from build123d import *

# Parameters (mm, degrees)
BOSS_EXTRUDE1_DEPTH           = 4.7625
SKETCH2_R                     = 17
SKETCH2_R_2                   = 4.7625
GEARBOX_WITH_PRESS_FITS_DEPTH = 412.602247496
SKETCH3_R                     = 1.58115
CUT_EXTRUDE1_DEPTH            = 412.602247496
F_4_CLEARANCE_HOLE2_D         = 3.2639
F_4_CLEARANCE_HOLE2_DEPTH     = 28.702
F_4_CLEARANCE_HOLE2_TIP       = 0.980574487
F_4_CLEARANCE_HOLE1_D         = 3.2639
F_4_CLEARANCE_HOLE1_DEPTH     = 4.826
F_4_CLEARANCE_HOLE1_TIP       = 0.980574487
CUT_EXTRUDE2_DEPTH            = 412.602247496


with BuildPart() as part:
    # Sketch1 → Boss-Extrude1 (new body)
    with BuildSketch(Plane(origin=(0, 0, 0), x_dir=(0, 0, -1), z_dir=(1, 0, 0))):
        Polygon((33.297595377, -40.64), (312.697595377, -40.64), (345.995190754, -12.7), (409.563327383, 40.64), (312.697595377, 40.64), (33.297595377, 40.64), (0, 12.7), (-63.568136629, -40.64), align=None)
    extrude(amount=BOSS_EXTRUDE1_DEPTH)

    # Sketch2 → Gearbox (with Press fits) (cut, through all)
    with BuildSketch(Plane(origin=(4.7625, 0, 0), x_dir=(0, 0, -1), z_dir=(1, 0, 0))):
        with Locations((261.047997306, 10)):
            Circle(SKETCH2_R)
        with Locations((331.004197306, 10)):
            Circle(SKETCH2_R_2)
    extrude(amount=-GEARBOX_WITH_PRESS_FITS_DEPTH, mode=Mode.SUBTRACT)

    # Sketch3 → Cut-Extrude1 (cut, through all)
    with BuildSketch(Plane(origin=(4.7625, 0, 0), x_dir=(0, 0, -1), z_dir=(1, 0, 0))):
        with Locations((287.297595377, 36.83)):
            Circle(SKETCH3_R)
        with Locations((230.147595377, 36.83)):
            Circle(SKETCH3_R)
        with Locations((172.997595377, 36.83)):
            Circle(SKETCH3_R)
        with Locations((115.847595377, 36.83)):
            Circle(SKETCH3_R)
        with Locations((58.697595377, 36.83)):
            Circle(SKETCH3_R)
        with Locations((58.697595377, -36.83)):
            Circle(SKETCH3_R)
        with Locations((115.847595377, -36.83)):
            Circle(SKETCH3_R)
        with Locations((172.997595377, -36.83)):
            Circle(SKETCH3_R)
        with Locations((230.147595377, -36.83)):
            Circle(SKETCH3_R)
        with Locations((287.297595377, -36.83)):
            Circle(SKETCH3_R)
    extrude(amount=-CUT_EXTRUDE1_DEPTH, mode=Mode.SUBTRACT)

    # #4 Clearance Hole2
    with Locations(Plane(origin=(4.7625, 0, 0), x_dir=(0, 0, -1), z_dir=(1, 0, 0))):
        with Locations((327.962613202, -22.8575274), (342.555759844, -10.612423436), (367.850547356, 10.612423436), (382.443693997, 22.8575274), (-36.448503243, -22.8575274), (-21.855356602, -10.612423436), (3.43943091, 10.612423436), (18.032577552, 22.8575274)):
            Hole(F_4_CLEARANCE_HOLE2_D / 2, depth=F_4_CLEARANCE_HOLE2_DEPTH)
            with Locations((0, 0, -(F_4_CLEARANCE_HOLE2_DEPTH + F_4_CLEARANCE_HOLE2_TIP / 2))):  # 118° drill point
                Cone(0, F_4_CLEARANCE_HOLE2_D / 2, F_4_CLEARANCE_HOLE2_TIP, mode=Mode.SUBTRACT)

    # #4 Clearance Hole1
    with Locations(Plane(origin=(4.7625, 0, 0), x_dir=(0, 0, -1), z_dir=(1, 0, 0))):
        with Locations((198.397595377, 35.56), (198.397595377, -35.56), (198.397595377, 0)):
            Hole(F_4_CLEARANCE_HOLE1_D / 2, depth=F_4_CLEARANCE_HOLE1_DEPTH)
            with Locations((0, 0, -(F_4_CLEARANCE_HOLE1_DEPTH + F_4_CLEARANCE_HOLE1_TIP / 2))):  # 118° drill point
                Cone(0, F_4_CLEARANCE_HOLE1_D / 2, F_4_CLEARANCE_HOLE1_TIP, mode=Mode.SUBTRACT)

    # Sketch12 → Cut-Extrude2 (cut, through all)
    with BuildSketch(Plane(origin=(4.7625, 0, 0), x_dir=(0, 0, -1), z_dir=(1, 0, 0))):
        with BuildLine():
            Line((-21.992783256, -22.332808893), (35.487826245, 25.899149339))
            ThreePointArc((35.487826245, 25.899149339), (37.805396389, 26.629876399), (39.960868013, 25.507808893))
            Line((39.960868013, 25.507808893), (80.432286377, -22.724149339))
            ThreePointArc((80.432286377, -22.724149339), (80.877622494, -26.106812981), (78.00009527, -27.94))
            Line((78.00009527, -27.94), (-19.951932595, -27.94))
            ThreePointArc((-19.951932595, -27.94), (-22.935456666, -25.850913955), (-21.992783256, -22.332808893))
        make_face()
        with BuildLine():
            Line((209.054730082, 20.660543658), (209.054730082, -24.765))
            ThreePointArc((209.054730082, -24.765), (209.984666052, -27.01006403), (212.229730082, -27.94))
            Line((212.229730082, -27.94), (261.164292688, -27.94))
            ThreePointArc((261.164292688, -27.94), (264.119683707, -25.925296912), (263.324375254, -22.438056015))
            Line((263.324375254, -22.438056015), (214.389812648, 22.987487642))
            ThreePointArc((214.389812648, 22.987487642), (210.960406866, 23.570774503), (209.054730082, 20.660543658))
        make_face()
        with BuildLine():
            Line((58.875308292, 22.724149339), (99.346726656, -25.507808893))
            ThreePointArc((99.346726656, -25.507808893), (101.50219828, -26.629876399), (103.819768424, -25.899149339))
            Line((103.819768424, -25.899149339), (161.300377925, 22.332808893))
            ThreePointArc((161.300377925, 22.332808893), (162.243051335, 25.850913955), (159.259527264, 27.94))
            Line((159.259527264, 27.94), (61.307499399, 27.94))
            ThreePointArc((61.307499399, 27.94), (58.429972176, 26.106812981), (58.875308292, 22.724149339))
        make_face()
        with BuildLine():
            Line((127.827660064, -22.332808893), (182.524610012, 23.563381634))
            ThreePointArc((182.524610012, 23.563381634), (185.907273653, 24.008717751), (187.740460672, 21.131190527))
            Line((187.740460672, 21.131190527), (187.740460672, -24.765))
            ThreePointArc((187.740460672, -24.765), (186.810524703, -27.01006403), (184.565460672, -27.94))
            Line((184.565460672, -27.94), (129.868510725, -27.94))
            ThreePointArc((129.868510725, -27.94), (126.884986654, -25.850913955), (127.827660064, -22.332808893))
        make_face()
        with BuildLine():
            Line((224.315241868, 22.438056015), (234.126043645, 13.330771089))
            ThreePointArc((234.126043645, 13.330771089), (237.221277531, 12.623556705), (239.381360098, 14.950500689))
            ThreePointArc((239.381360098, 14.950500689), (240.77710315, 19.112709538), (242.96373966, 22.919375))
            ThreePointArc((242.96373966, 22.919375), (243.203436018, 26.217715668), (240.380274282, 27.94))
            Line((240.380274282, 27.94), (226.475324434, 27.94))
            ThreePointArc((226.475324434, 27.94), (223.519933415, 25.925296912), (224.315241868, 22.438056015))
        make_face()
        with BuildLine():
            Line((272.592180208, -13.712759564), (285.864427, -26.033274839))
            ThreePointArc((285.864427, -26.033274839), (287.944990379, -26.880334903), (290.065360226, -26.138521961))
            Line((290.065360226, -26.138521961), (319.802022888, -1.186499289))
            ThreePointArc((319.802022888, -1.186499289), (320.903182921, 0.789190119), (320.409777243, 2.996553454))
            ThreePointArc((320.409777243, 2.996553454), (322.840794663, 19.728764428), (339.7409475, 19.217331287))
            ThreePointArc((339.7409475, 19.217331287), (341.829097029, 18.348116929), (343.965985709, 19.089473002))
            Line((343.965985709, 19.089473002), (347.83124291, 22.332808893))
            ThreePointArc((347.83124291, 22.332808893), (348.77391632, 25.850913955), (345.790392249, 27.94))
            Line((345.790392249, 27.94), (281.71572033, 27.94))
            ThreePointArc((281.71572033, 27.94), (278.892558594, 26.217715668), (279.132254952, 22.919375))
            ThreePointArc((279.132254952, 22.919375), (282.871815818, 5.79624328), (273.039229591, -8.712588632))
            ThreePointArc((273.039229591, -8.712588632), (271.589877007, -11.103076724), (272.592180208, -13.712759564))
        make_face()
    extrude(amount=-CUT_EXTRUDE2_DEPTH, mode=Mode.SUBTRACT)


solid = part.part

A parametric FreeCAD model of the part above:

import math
import FreeCAD as App
import Part
import Sketcher
Q = App.Units.Quantity


def add_polygon(sketch, points):
    """Adds a closed chain of lines whose ends are joined by coincident constraints."""
    first, n = sketch.GeometryCount, len(points)
    for a, b in zip(points, points[1:] + points[:1]):
        sketch.addGeometry(Part.LineSegment(App.Vector(*a, 0), App.Vector(*b, 0)), False)
    for i in range(n):
        sketch.addConstraint(Sketcher.Constraint("Coincident", first + i, 2, first + (i + 1) % n, 1))

doc = App.newDocument("Part")
body = doc.addObject("PartDesign::Body", "Body")

sketch1 = body.newObject("Sketcher::SketchObject", "Sketch")
sketch1.AttachmentSupport = (doc.getObject("YZ_Plane"), [""])
sketch1.MapMode = "FlatFace"
add_polygon(sketch1, [(-41, -313), (-13, -346), (41, -410), (41, -33), (13, 0), (-41, 64)])
sketch1.addConstraint([
    Sketcher.Constraint("Vertical", 2),
    Sketcher.Constraint("Vertical", 5),
    Sketcher.Constraint("PointOnObject", 3, 2, -1),
    Sketcher.Constraint("Parallel", 0, 1),
    Sketcher.Constraint("Parallel", 1, 3),
    Sketcher.Constraint("Parallel", 3, 4),
    Sketcher.Constraint("Equal", 0, 3),
    Sketcher.Constraint("Angle", 0, Q("-50 deg")),
    Sketcher.Constraint("DistanceX", 0, 2, 3, 2, Q("1 in")),
    Sketcher.Constraint("DistanceY", 5, 2, 2, 2, Q("11 in")),
    Sketcher.Constraint("DistanceX", 0, 2, -1, 1, Q("0.5 in")),
    Sketcher.Constraint("DistanceX", -1, 1, 1, 2, Q("1.6 in")),
])
pad1 = body.newObject("PartDesign::Pad", "Pad")
pad1.Profile = sketch1
pad1.Length = Q("0.1875 in")

sketch2 = body.newObject("Sketcher::SketchObject", "Sketch001")
sketch2.AttachmentSupport = (doc.getObject("YZ_Plane"), [""])
sketch2.MapMode = "FlatFace"
sketch2.AttachmentOffset = App.Placement(App.Vector(0, 0, 0.1875 * 25.4), App.Rotation())
sketch2.addGeometry([
    Part.Circle(App.Vector(10, -261, 0), App.Vector(0, 0, 1), 17),
    Part.Circle(App.Vector(10, -331, 0), App.Vector(0, 0, 1), 4.8),
], False)
sketch2.addConstraint([
    Sketcher.Constraint("Vertical", 0, 3, 1, 3),
    Sketcher.Constraint("Diameter", 1, Q("0.375 in")),
    Sketcher.Constraint("Diameter", 0, 34.0),
    Sketcher.Constraint("DistanceX", -1, 1, 0, 3, 10.0),
    Sketcher.Constraint("DistanceY", 1, 3, 0, 3, 69.9562),
    Sketcher.Constraint("DistanceY", 0, 3, -1, 1, 261.047997),
])
pocket1 = body.newObject("PartDesign::Pocket", "Pocket")
pocket1.Profile = sketch2
pocket1.Type = "ThroughAll"

sketch3 = body.newObject("Sketcher::SketchObject", "Sketch002")
sketch3.AttachmentSupport = (doc.getObject("YZ_Plane"), [""])
sketch3.MapMode = "FlatFace"
sketch3.AttachmentOffset = App.Placement(App.Vector(0, 0, 0.1875 * 25.4), App.Rotation())
sketch3.addGeometry([
    Part.Circle(App.Vector(36.8, -287.3, 0), App.Vector(0, 0, 1), 1.6),
    Part.Circle(App.Vector(36.8, -230.1, 0), App.Vector(0, 0, 1), 1.6),
    Part.Circle(App.Vector(36.8, -173, 0), App.Vector(0, 0, 1), 1.6),
    Part.Circle(App.Vector(36.8, -115.8, 0), App.Vector(0, 0, 1), 1.6),
    Part.Circle(App.Vector(36.8, -58.7, 0), App.Vector(0, 0, 1), 1.6),
    Part.Circle(App.Vector(-36.8, -58.7, 0), App.Vector(0, 0, 1), 1.6),
    Part.Circle(App.Vector(-36.8, -115.8, 0), App.Vector(0, 0, 1), 1.6),
    Part.Circle(App.Vector(-36.8, -173, 0), App.Vector(0, 0, 1), 1.6),
    Part.Circle(App.Vector(-36.8, -230.1, 0), App.Vector(0, 0, 1), 1.6),
    Part.Circle(App.Vector(-36.8, -287.3, 0), App.Vector(0, 0, 1), 1.6),
], False)
sketch3.addConstraint([
    Sketcher.Constraint("Equal", 0, 1),
    Sketcher.Constraint("Equal", 1, 2),
    Sketcher.Constraint("Equal", 2, 3),
    Sketcher.Constraint("Equal", 3, 4),
    Sketcher.Constraint("Equal", 4, 5),
    Sketcher.Constraint("Equal", 5, 6),
    Sketcher.Constraint("Equal", 6, 7),
    Sketcher.Constraint("Equal", 7, 8),
    Sketcher.Constraint("Equal", 8, 9),
    Sketcher.Constraint("Symmetric", 4, 3, 5, 3, -2),
    Sketcher.Constraint("Symmetric", 3, 3, 6, 3, -2),
    Sketcher.Constraint("Symmetric", 2, 3, 7, 3, -2),
    Sketcher.Constraint("Symmetric", 1, 3, 8, 3, -2),
    Sketcher.Constraint("Symmetric", 0, 3, 9, 3, -2),
    Sketcher.Constraint("Vertical", 0, 3, 1, 3),
    Sketcher.Constraint("Vertical", 1, 3, 2, 3),
    Sketcher.Constraint("Vertical", 2, 3, 3, 3),
    Sketcher.Constraint("Vertical", 3, 3, 4, 3),
    Sketcher.Constraint("DistanceY", 0, 3, 4, 3, Q("9 in")),
    Sketcher.Constraint("Diameter", 0, Q("0.1245 in")),
    Sketcher.Constraint("DistanceY", 0, 3, 2, 3, Q("4.5 in")),
    Sketcher.Constraint("DistanceY", 1, 3, 3, 3, Q("4.5 in")),
    Sketcher.Constraint("DistanceX", 5, 3, 4, 3, Q("2.9 in")),
    Sketcher.Constraint("DistanceY", 0, 3, 1, 3, Q("2.25 in")),
    Sketcher.Constraint("DistanceY", 0, 3, -1, 1, 287.297595),
])
pocket2 = body.newObject("PartDesign::Pocket", "Pocket001")
pocket2.Profile = sketch3
pocket2.Type = "ThroughAll"

sketch4 = body.newObject("Sketcher::SketchObject", "Sketch003")
sketch4.AttachmentSupport = (doc.getObject("YZ_Plane"), [""])
sketch4.MapMode = "FlatFace"
sketch4.AttachmentOffset = App.Placement(App.Vector(0, 0, 0.1875 * 25.4), App.Rotation())
sketch4.addGeometry([
    Part.Circle(App.Vector(-22.9, -328, 0), App.Vector(0, 0, 1), 1.6),
    Part.Circle(App.Vector(-10.6, -342.6, 0), App.Vector(0, 0, 1), 1.6),
    Part.Circle(App.Vector(10.6, -367.9, 0), App.Vector(0, 0, 1), 1.6),
    Part.Circle(App.Vector(22.9, -382.4, 0), App.Vector(0, 0, 1), 1.6),
    Part.Circle(App.Vector(-22.9, 36.4, 0), App.Vector(0, 0, 1), 1.6),
    Part.Circle(App.Vector(-10.6, 21.9, 0), App.Vector(0, 0, 1), 1.6),
    Part.Circle(App.Vector(10.6, -3.4, 0), App.Vector(0, 0, 1), 1.6),
    Part.Circle(App.Vector(22.9, -18, 0), App.Vector(0, 0, 1), 1.6),
], False)
sketch4.addConstraint([
    Sketcher.Constraint("Equal", 0, 1),
    Sketcher.Constraint("Equal", 1, 2),
    Sketcher.Constraint("Equal", 2, 3),
    Sketcher.Constraint("Equal", 3, 4),
    Sketcher.Constraint("Equal", 4, 5),
    Sketcher.Constraint("Equal", 5, 6),
    Sketcher.Constraint("Equal", 6, 7),
    Sketcher.Constraint("Vertical", 0, 3, 4, 3),
    Sketcher.Constraint("Vertical", 1, 3, 5, 3),
    Sketcher.Constraint("Vertical", 2, 3, 6, 3),
    Sketcher.Constraint("Vertical", 3, 3, 7, 3),
    Sketcher.Constraint("Diameter", 0, Q("0.1285 in")),
    Sketcher.Constraint("DistanceY", 1, 3, -1, 1, 342.55576),
    Sketcher.Constraint("DistanceY", 6, 3, -1, 1, 3.439431),
    Sketcher.Constraint("DistanceX", 0, 3, 2, 3, 33.469951),
    Sketcher.Constraint("DistanceX", 1, 3, 3, 3, 33.469951),
    Sketcher.Constraint("DistanceY", 3, 3, 0, 3, 54.481081),
    Sketcher.Constraint("DistanceY", 2, 3, 4, 3, 404.299051),
    Sketcher.Constraint("DistanceY", 0, 3, 5, 3, 349.81797),
    Sketcher.Constraint("DistanceY", 7, 3, 4, 3, 54.481081),
    Sketcher.Constraint("DistanceX", 0, 3, -1, 1, 22.857527),
    Sketcher.Constraint("DistanceY", 0, 3, -1, 1, 327.962613),
    Sketcher.Constraint("DistanceX", 1, 3, -1, 1, 10.612423),
    Sketcher.Constraint("DistanceY", 2, 3, -1, 1, 367.850547),
])
doc.recompute()
hole = body.newObject("PartDesign::Hole", "Hole")
hole.Profile = sketch4
hole.ThreadType = "None"
hole.Diameter = Q("0.1285 in")
hole.DepthType = "Dimension"
hole.Depth = Q("1.13 in")
hole.DrillPoint = "Angled"
hole.DrillPointAngle = 118

sketch5 = body.newObject("Sketcher::SketchObject", "Sketch004")
sketch5.AttachmentSupport = (doc.getObject("YZ_Plane"), [""])
sketch5.MapMode = "FlatFace"
sketch5.AttachmentOffset = App.Placement(App.Vector(0, 0, 0.1875 * 25.4), App.Rotation())
sketch5.addGeometry([
    Part.Circle(App.Vector(35.6, -198.4, 0), App.Vector(0, 0, 1), 1.6),
    Part.Circle(App.Vector(-35.6, -198.4, 0), App.Vector(0, 0, 1), 1.6),
    Part.Circle(App.Vector(0, -198.4, 0), App.Vector(0, 0, 1), 1.6),
], False)
sketch5.addConstraint([
    Sketcher.Constraint("Equal", 0, 1),
    Sketcher.Constraint("Equal", 1, 2),
    Sketcher.Constraint("Symmetric", 0, 3, 1, 3, -2),
    Sketcher.Constraint("PointOnObject", 2, 3, -2),
    Sketcher.Constraint("Horizontal", 1, 3, 2, 3),
    Sketcher.Constraint("Diameter", 0, Q("0.1285 in")),
    Sketcher.Constraint("DistanceX", -1, 1, 0, 3, Q("1.4 in")),
    Sketcher.Constraint("DistanceY", 0, 3, -1, 1, 198.397595),
])
doc.recompute()
hole2 = body.newObject("PartDesign::Hole", "Hole001")
hole2.Profile = sketch5
hole2.ThreadType = "None"
hole2.Diameter = Q("0.1285 in")
hole2.DepthType = "Dimension"
hole2.Depth = Q("0.19 in")
hole2.DrillPoint = "Angled"
hole2.DrillPointAngle = 118

sketch6 = body.newObject("Sketcher::SketchObject", "Sketch005")
sketch6.AttachmentSupport = (doc.getObject("YZ_Plane"), [""])
sketch6.MapMode = "FlatFace"
sketch6.AttachmentOffset = App.Placement(App.Vector(0, 0, 0.1875 * 25.4), App.Rotation())
sketch6.addGeometry([
    Part.LineSegment(App.Vector(25.9, -35.5, 0), App.Vector(-22.3, 22, 0)),
    Part.ArcOfCircle(Part.Circle(App.Vector(-24.8, 20, 0), App.Vector(0, 0, 1), 3.2), math.radians(40), math.radians(180)),
    Part.LineSegment(App.Vector(-27.9, 20, 0), App.Vector(-27.9, -78, 0)),
    Part.ArcOfCircle(Part.Circle(App.Vector(-24.8, -78, 0), App.Vector(0, 0, 1), 3.2), math.radians(180), math.radians(310)),
    Part.LineSegment(App.Vector(-22.7, -80.4, 0), App.Vector(25.5, -40, 0)),
    Part.ArcOfCircle(Part.Circle(App.Vector(23.5, -37.5, 0), App.Vector(0, 0, 1), 3.2), math.radians(-50), math.radians(40)),
    Part.LineSegment(App.Vector(20.7, -209.1, 0), App.Vector(-24.8, -209.1, 0)),
    Part.ArcOfCircle(Part.Circle(App.Vector(-24.8, -212.2, 0), App.Vector(0, 0, 1), 3.2), math.radians(90), math.radians(180)),
    Part.LineSegment(App.Vector(-27.9, -212.2, 0), App.Vector(-27.9, -261.2, 0)),
    Part.ArcOfCircle(Part.Circle(App.Vector(-24.8, -261.2, 0), App.Vector(0, 0, 1), 3.2), math.radians(180), math.radians(317)),
    Part.LineSegment(App.Vector(-22.4, -263.3, 0), App.Vector(23, -214.4, 0)),
    Part.ArcOfCircle(Part.Circle(App.Vector(20.7, -212.2, 0), App.Vector(0, 0, 1), 3.2), math.radians(-43), math.radians(90)),
    Part.LineSegment(App.Vector(22.7, -58.9, 0), App.Vector(-25.5, -99.3, 0)),
    Part.ArcOfCircle(Part.Circle(App.Vector(-23.5, -101.8, 0), App.Vector(0, 0, 1), 3.2), math.radians(130), math.radians(220)),
    Part.LineSegment(App.Vector(-25.9, -103.8, 0), App.Vector(22.3, -161.3, 0)),
    Part.ArcOfCircle(Part.Circle(App.Vector(24.8, -159.3, 0), App.Vector(0, 0, 1), 3.2), math.radians(-140), math.radians(0)),
    Part.LineSegment(App.Vector(27.9, -159.3, 0), App.Vector(27.9, -61.3, 0)),
    Part.ArcOfCircle(Part.Circle(App.Vector(24.8, -61.3, 0), App.Vector(0, 0, 1), 3.2), math.radians(0), math.radians(130)),
    Part.LineSegment(App.Vector(23.6, -182.5, 0), App.Vector(-22.3, -127.8, 0)),
    Part.ArcOfCircle(Part.Circle(App.Vector(-24.8, -129.9, 0), App.Vector(0, 0, 1), 3.2), math.radians(40), math.radians(180)),
    Part.LineSegment(App.Vector(-27.9, -129.9, 0), App.Vector(-27.9, -184.6, 0)),
    Part.ArcOfCircle(Part.Circle(App.Vector(-24.8, -184.6, 0), App.Vector(0, 0, 1), 3.2), math.radians(180), math.radians(270)),
    Part.LineSegment(App.Vector(-24.8, -187.7, 0), App.Vector(21.1, -187.7, 0)),
    Part.ArcOfCircle(Part.Circle(App.Vector(21.1, -184.6, 0), App.Vector(0, 0, 1), 3.2), math.radians(-90), math.radians(40)),
    Part.LineSegment(App.Vector(22.4, -224.3, 0), App.Vector(13.3, -234.1, 0)),
    Part.ArcOfCircle(Part.Circle(App.Vector(15.7, -236.3, 0), App.Vector(0, 0, 1), 3.2), math.radians(137), math.radians(257)),
    Part.ArcOfCircle(Part.Circle(App.Vector(10, -261, 0), App.Vector(0, 0, 1), 22.2), math.radians(54), math.radians(77)),
    Part.ArcOfCircle(Part.Circle(App.Vector(24.8, -240.4, 0), App.Vector(0, 0, 1), 3.2), math.radians(-126), math.radians(0)),
    Part.LineSegment(App.Vector(27.9, -240.4, 0), App.Vector(27.9, -226.5, 0)),
    Part.ArcOfCircle(Part.Circle(App.Vector(24.8, -226.5, 0), App.Vector(0, 0, 1), 3.2), math.radians(0), math.radians(137)),
    Part.LineSegment(App.Vector(-13.7, -272.6, 0), App.Vector(-26, -285.9, 0)),
    Part.ArcOfCircle(Part.Circle(App.Vector(-23.7, -288, 0), App.Vector(0, 0, 1), 3.2), math.radians(137), math.radians(220)),
    Part.LineSegment(App.Vector(-26.1, -290.1, 0), App.Vector(-1.2, -319.8, 0)),
    Part.ArcOfCircle(Part.Circle(App.Vector(1.2, -317.8, 0), App.Vector(0, 0, 1), 3.2), math.radians(-140), math.radians(-57)),
    Part.ArcOfCircle(Part.Circle(App.Vector(10, -331, 0), App.Vector(0, 0, 1), 12.7), math.radians(-43), math.radians(123)),
    Part.ArcOfCircle(Part.Circle(App.Vector(21.5, -341.9, 0), App.Vector(0, 0, 1), 3.2), math.radians(137), math.radians(220)),
    Part.LineSegment(App.Vector(19.1, -344, 0), App.Vector(22.3, -347.8, 0)),
    Part.ArcOfCircle(Part.Circle(App.Vector(24.8, -345.8, 0), App.Vector(0, 0, 1), 3.2), math.radians(-140), math.radians(0)),
    Part.LineSegment(App.Vector(27.9, -345.8, 0), App.Vector(27.9, -281.7, 0)),
    Part.ArcOfCircle(Part.Circle(App.Vector(24.8, -281.7, 0), App.Vector(0, 0, 1), 3.2), math.radians(0), math.radians(126)),
    Part.ArcOfCircle(Part.Circle(App.Vector(10, -261, 0), App.Vector(0, 0, 1), 22.2), math.radians(-147), math.radians(-54)),
    Part.ArcOfCircle(Part.Circle(App.Vector(-11.4, -274.8, 0), App.Vector(0, 0, 1), 3.2), math.radians(33), math.radians(137)),
], False)
sketch6.addConstraint([
    Sketcher.Constraint("Tangent", 0, 2, 1, 1),
    Sketcher.Constraint("Tangent", 1, 2, 2, 1),
    Sketcher.Constraint("Tangent", 2, 2, 3, 1),
    Sketcher.Constraint("Tangent", 3, 2, 4, 1),
    Sketcher.Constraint("Tangent", 4, 2, 5, 1),
    Sketcher.Constraint("Tangent", 5, 2, 0, 1),
    Sketcher.Constraint("Tangent", 6, 2, 7, 1),
    Sketcher.Constraint("Tangent", 7, 2, 8, 1),
    Sketcher.Constraint("Tangent", 8, 2, 9, 1),
    Sketcher.Constraint("Tangent", 9, 2, 10, 1),
    Sketcher.Constraint("Tangent", 10, 2, 11, 1),
    Sketcher.Constraint("Tangent", 11, 2, 6, 1),
    Sketcher.Constraint("Tangent", 12, 2, 13, 1),
    Sketcher.Constraint("Tangent", 13, 2, 14, 1),
    Sketcher.Constraint("Tangent", 14, 2, 15, 1),
    Sketcher.Constraint("Tangent", 15, 2, 16, 1),
    Sketcher.Constraint("Tangent", 16, 2, 17, 1),
    Sketcher.Constraint("Tangent", 17, 2, 12, 1),
    Sketcher.Constraint("Tangent", 18, 2, 19, 1),
    Sketcher.Constraint("Tangent", 19, 2, 20, 1),
    Sketcher.Constraint("Tangent", 20, 2, 21, 1),
    Sketcher.Constraint("Tangent", 21, 2, 22, 1),
    Sketcher.Constraint("Tangent", 22, 2, 23, 1),
    Sketcher.Constraint("Tangent", 23, 2, 18, 1),
    Sketcher.Constraint("Tangent", 24, 2, 25, 1),
    Sketcher.Constraint("Tangent", 25, 2, 26, 2),
    Sketcher.Constraint("Tangent", 26, 1, 27, 1),
    Sketcher.Constraint("Tangent", 27, 2, 28, 1),
    Sketcher.Constraint("Tangent", 28, 2, 29, 1),
    Sketcher.Constraint("Tangent", 29, 2, 24, 1),
    Sketcher.Constraint("Tangent", 30, 2, 31, 1),
    Sketcher.Constraint("Tangent", 31, 2, 32, 1),
    Sketcher.Constraint("Tangent", 32, 2, 33, 1),
    Sketcher.Constraint("Tangent", 33, 2, 34, 2),
    Sketcher.Constraint("Tangent", 34, 1, 35, 1),
    Sketcher.Constraint("Tangent", 35, 2, 36, 1),
    Sketcher.Constraint("Tangent", 36, 2, 37, 1),
    Sketcher.Constraint("Tangent", 37, 2, 38, 1),
    Sketcher.Constraint("Tangent", 38, 2, 39, 1),
    Sketcher.Constraint("Tangent", 39, 2, 40, 2),
    Sketcher.Constraint("Tangent", 40, 1, 41, 1),
    Sketcher.Constraint("Tangent", 41, 2, 30, 1),
    Sketcher.Constraint("Vertical", 2),
    Sketcher.Constraint("Horizontal", 6),
    Sketcher.Constraint("Vertical", 8),
    Sketcher.Constraint("Vertical", 16),
    Sketcher.Constraint("Vertical", 20),
    Sketcher.Constraint("Horizontal", 22),
    Sketcher.Constraint("Vertical", 28),
    Sketcher.Constraint("Vertical", 38),
    Sketcher.Constraint("Coincident", 40, 3, 26, 3),
    Sketcher.Constraint("Equal", 1, 3),
    Sketcher.Constraint("Equal", 3, 5),
    Sketcher.Constraint("Equal", 5, 7),
    Sketcher.Constraint("Equal", 7, 9),
    Sketcher.Constraint("Equal", 9, 11),
    Sketcher.Constraint("Equal", 11, 13),
    Sketcher.Constraint("Equal", 13, 15),
    Sketcher.Constraint("Equal", 15, 17),
    Sketcher.Constraint("Equal", 17, 19),
    Sketcher.Constraint("Equal", 19, 21),
    Sketcher.Constraint("Equal", 21, 23),
    Sketcher.Constraint("Equal", 23, 25),
    Sketcher.Constraint("Equal", 25, 27),
    Sketcher.Constraint("Equal", 27, 29),
    Sketcher.Constraint("Equal", 29, 31),
    Sketcher.Constraint("Equal", 31, 33),
    Sketcher.Constraint("Equal", 33, 35),
    Sketcher.Constraint("Equal", 35, 37),
    Sketcher.Constraint("Equal", 37, 39),
    Sketcher.Constraint("Equal", 26, 40),
    Sketcher.Constraint("Equal", 39, 41),
    Sketcher.Constraint("Perpendicular", 0, 4),
    Sketcher.Constraint("Parallel", 4, 12),
    Sketcher.Constraint("Perpendicular", 12, 14),
    Sketcher.Constraint("Parallel", 14, 18),
    Sketcher.Constraint("Parallel", 10, 24),
    Sketcher.Constraint("Parallel", 24, 30),
    Sketcher.Constraint("Parallel", 18, 32),
    Sketcher.Constraint("Parallel", 32, 36),
    Sketcher.Constraint("Vertical", 3, 3, 7, 3),
    Sketcher.Constraint("Vertical", 9, 3, 19, 3),
    Sketcher.Constraint("Vertical", 17, 3, 27, 3),
    Sketcher.Constraint("Vertical", 26, 3, 34, 3),
    Sketcher.Constraint("Vertical", 29, 3, 37, 3),
    Sketcher.Constraint("Equal", 2, 16),
    Sketcher.Constraint("Radius", 34, Q("0.5 in")),
    Sketcher.Constraint("Angle", 0, Q("130 deg")),
    Sketcher.Constraint("Radius", 1, Q("0.125 in")),
    Sketcher.Constraint("Radius", 26, Q("0.875 in")),
    Sketcher.Constraint("DistanceX", 1, 2, -1, 1, Q("1.1 in")),
    Sketcher.Constraint("DistanceX", -1, 1, 15, 2, Q("1.1 in")),
    Sketcher.Constraint("DistanceX", 22, 1, 22, 2, 45.896191),
    Sketcher.Constraint("DistanceY", 28, 1, 28, 2, 13.90495),
    Sketcher.Constraint("DistanceY", 38, 1, 38, 2, 64.074672),
    Sketcher.Constraint("DistanceY", 17, 3, -1, 1, 61.307499),
    Sketcher.Constraint("DistanceX", -1, 1, 26, 3, 10.0),
    Sketcher.Constraint("DistanceX", -1, 1, 25, 2, 14.950501),
    Sketcher.Constraint("DistanceX", 32, 2, -1, 1, 1.186499),
    Sketcher.Constraint("Distance", 4, 62.96235),
    Sketcher.Constraint("Distance", 10, 66.768791),
    Sketcher.Constraint("DistanceY", 7, 3, -1, 1, 212.22973),
    Sketcher.Constraint("DistanceY", 19, 3, -1, 1, 129.868511),
    Sketcher.Constraint("DistanceX", 31, 3, -1, 1, 23.706331),
    Sketcher.Constraint("DistanceY", 31, 3, -1, 1, 288.02451),
    Sketcher.Constraint("DistanceY", 39, 3, -1, 1, 281.71572),
    Sketcher.Constraint("DistanceY", 4, 2, -1, 1, 39.960868),
])
pocket3 = body.newObject("PartDesign::Pocket", "Pocket002")
pocket3.Profile = sketch6
pocket3.Type = "ThroughAll"

doc.recompute()
